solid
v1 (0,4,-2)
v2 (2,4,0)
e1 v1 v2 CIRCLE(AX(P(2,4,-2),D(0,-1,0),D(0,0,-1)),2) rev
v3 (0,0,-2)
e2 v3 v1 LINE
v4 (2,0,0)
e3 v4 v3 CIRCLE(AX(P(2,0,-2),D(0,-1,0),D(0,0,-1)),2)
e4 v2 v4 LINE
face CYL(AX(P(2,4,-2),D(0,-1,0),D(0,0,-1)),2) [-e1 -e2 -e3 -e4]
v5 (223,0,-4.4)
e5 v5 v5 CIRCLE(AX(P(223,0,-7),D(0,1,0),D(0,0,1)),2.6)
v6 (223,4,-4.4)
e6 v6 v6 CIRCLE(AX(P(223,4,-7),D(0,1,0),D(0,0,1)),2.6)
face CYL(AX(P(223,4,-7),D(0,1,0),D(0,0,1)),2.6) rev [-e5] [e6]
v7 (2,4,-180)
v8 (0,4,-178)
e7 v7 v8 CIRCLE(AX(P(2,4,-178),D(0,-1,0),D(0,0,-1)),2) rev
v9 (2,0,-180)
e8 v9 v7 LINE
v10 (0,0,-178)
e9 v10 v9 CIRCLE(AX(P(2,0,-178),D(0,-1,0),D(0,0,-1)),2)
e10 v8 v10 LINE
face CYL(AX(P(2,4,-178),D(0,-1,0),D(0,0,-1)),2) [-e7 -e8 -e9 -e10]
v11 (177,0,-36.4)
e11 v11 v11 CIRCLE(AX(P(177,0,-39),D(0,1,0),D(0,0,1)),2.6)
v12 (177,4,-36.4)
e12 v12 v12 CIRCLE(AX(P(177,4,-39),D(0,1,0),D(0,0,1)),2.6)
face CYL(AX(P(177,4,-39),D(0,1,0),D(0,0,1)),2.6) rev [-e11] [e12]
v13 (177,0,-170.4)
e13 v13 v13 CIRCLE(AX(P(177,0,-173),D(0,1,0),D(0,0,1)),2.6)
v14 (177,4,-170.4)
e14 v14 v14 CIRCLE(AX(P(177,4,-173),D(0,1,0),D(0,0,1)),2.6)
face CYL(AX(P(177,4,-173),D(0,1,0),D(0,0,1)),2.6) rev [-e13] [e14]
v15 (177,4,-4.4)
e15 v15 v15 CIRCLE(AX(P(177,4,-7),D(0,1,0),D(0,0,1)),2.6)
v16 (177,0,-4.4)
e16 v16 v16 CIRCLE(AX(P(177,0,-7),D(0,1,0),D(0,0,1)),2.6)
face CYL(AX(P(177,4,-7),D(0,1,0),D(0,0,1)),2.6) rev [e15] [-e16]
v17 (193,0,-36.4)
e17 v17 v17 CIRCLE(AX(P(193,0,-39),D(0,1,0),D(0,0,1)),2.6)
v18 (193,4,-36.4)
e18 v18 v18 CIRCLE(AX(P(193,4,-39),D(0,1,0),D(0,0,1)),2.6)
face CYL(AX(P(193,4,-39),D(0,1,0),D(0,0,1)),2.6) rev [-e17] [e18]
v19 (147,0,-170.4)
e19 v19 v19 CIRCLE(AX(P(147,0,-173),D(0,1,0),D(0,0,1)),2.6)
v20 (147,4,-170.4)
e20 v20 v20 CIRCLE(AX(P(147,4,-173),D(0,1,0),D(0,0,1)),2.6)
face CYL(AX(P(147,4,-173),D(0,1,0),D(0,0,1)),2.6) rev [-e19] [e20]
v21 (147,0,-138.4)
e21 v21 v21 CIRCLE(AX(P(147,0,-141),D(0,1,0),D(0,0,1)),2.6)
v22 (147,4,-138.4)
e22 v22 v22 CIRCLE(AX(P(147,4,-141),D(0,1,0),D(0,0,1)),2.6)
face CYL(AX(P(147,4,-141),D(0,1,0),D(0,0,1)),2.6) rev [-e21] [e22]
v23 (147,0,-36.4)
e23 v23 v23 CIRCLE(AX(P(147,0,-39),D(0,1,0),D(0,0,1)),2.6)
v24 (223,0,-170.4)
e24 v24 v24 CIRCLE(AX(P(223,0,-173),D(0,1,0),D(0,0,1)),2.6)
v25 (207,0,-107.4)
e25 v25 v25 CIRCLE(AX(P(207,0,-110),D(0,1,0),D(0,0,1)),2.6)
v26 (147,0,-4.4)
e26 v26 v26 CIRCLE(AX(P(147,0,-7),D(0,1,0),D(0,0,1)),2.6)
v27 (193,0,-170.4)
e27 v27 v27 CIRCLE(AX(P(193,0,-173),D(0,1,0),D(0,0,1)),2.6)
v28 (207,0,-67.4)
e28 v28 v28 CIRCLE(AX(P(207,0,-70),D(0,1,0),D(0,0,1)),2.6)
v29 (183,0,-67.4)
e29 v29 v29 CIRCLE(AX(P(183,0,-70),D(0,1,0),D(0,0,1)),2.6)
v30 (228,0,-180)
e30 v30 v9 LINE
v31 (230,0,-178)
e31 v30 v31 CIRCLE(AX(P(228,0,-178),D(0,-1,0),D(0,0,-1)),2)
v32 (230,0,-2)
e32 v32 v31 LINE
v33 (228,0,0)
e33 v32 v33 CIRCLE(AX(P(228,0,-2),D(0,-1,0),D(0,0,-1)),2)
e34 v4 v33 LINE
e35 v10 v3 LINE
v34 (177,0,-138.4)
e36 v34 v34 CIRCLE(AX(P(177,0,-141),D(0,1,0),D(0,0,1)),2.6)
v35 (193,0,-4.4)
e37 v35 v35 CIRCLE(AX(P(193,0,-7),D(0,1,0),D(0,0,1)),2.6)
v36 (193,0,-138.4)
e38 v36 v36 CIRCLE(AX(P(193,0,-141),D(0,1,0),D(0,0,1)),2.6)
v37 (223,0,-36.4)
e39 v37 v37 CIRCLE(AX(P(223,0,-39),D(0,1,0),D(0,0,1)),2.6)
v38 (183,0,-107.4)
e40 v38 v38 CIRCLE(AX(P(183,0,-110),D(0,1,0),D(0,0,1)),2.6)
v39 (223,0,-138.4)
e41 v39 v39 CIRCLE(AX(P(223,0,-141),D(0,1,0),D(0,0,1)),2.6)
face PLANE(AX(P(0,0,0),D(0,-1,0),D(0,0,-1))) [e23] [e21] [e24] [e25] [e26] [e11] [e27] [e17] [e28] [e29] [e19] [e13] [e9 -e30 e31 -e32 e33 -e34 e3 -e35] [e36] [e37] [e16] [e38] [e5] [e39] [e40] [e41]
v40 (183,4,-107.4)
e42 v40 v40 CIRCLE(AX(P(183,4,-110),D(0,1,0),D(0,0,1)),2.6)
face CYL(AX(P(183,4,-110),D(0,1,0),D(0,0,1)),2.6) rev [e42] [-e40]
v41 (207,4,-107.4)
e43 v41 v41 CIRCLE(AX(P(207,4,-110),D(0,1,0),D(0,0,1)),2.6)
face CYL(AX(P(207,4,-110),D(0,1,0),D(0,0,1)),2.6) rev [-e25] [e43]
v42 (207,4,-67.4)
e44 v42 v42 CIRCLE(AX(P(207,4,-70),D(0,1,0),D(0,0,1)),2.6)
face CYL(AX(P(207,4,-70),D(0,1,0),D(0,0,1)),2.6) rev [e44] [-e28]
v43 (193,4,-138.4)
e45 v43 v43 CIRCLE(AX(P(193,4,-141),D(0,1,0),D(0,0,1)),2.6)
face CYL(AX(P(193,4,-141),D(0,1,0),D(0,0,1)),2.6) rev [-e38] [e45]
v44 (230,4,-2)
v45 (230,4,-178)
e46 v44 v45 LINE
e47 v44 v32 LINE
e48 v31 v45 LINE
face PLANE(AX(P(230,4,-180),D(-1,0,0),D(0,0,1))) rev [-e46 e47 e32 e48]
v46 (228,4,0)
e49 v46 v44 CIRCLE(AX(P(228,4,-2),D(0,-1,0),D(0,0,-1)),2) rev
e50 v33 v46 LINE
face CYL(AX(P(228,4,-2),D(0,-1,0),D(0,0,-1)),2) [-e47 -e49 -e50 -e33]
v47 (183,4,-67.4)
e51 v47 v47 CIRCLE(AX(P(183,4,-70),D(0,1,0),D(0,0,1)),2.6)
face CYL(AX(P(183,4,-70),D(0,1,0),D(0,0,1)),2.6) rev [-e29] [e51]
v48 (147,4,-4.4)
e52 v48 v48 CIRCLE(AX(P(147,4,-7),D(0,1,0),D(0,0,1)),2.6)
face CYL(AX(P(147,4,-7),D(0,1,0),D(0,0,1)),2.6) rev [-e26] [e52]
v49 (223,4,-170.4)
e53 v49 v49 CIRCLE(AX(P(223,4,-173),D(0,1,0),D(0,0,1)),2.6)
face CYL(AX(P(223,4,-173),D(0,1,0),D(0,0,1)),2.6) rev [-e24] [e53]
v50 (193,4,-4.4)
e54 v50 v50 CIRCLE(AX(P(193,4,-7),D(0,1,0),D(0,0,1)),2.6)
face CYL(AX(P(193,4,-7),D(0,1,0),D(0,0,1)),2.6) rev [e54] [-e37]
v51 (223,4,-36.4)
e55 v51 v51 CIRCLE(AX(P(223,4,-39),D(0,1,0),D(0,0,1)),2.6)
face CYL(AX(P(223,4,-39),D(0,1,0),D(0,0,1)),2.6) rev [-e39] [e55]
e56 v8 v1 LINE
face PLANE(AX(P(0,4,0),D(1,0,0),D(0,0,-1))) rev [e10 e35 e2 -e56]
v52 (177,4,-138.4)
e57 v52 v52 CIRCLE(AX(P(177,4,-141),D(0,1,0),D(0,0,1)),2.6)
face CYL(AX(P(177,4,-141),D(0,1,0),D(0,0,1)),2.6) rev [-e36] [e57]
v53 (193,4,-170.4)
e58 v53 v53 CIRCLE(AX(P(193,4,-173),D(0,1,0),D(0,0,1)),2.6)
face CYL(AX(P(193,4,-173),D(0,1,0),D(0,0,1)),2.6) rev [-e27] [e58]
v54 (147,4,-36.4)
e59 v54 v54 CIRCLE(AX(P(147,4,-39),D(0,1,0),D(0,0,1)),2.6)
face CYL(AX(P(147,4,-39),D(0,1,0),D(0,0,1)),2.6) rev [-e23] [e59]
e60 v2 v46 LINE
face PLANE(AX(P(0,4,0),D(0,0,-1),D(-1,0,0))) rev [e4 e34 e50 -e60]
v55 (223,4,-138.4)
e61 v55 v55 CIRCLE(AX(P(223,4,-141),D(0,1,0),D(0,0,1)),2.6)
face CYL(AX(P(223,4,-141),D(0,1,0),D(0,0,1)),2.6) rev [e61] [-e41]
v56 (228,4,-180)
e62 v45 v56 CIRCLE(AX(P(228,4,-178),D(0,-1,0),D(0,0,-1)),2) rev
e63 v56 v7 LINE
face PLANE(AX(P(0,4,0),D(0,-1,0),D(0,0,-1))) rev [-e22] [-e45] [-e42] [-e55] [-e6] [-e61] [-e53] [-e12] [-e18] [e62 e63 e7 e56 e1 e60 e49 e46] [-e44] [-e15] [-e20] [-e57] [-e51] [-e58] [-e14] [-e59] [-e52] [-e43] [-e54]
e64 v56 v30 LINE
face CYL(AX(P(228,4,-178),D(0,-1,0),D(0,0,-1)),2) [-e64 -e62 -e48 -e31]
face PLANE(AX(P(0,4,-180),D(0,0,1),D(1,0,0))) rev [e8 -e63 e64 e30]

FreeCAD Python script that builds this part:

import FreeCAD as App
import Part
import Sketcher
Q = App.Units.Quantity


def edges_at(feature, points):
    """Names of the edges that pass closest to the given points."""
    edges = feature.Shape.Edges
    near = lambda p: min(range(len(edges)), key=lambda i: edges[i].distToShape(Part.Vertex(*p))[0])
    return sorted({f"Edge{near(p) + 1}" for p in points})


def add_polygon(sketch, points):
    """Adds a closed chain of lines whose ends are joined by coincident constraints."""
    first, n = sketch.GeometryCount, len(points)
    for a, b in zip(points, points[1:] + points[:1]):
        sketch.addGeometry(Part.LineSegment(App.Vector(*a, 0), App.Vector(*b, 0)), False)
    for i in range(n):
        sketch.addConstraint(Sketcher.Constraint("Coincident", first + i, 2, first + (i + 1) % n, 1))

doc = App.newDocument("Part")
body = doc.addObject("PartDesign::Body", "Body")

# Sketch on XZ plane
sketch1 = body.newObject("Sketcher::SketchObject", "Sketch")
sketch1.AttachmentSupport = (doc.getObject("XZ_Plane"), [""])
sketch1.MapMode = "FlatFace"
add_polygon(sketch1, [(0, -180), (0, 0), (230, 0), (230, -180)])  # lines 0-3
sketch1.addConstraint([
    Sketcher.Constraint("Vertical", 0),
    Sketcher.Constraint("Horizontal", 1),
    Sketcher.Constraint("Vertical", 2),
    Sketcher.Constraint("Horizontal", 3),
    Sketcher.Constraint("Coincident", 0, 2, -1, 1),
    Sketcher.Constraint("DistanceX", 1, 1, 1, 2, Q("230 mm")),
    Sketcher.Constraint("DistanceY", 0, 1, 0, 2, Q("180 mm")),
])
pad1 = body.newObject("PartDesign::Pad", "Pad")
pad1.Profile = sketch1
pad1.Length = 4
pad1.Reversed = True

# Sketch on XZ plane
sketch2 = body.newObject("Sketcher::SketchObject", "Sketch001")
sketch2.AttachmentSupport = (doc.getObject("XZ_Plane"), [""])
sketch2.MapMode = "FlatFace"
sketch2.AttachmentOffset = App.Placement(App.Vector(0, 0, -4), App.Rotation())
sketch2.addGeometry([
    Part.Circle(App.Vector(183, -70, 0), App.Vector(0, 0, 1), 2.6),  # 0
    Part.Circle(App.Vector(183, -110, 0), App.Vector(0, 0, 1), 2.6),  # 1
    Part.Circle(App.Vector(207, -70, 0), App.Vector(0, 0, 1), 2.6),  # 2
    Part.Circle(App.Vector(207, -110, 0), App.Vector(0, 0, 1), 2.6),  # 3
    Part.Circle(App.Vector(223, -39, 0), App.Vector(0, 0, 1), 2.6),  # 4
    Part.Circle(App.Vector(223, -7, 0), App.Vector(0, 0, 1), 2.6),  # 5
    Part.Circle(App.Vector(193, -7, 0), App.Vector(0, 0, 1), 2.6),  # 6
    Part.Circle(App.Vector(193, -39, 0), App.Vector(0, 0, 1), 2.6),  # 7
    Part.Circle(App.Vector(147, -39, 0), App.Vector(0, 0, 1), 2.6),  # 8
    Part.Circle(App.Vector(177, -39, 0), App.Vector(0, 0, 1), 2.6),  # 9
    Part.Circle(App.Vector(147, -7, 0), App.Vector(0, 0, 1), 2.6),  # 10
    Part.Circle(App.Vector(177, -7, 0), App.Vector(0, 0, 1), 2.6),  # 11
    Part.Circle(App.Vector(193, -173, 0), App.Vector(0, 0, 1), 2.6),  # 12
    Part.Circle(App.Vector(223, -173, 0), App.Vector(0, 0, 1), 2.6),  # 13
    Part.Circle(App.Vector(223, -141, 0), App.Vector(0, 0, 1), 2.6),  # 14
    Part.Circle(App.Vector(193, -141, 0), App.Vector(0, 0, 1), 2.6),  # 15
    Part.Circle(App.Vector(177, -173, 0), App.Vector(0, 0, 1), 2.6),  # 16
    Part.Circle(App.Vector(147, -173, 0), App.Vector(0, 0, 1), 2.6),  # 17
    Part.Circle(App.Vector(177, -141, 0), App.Vector(0, 0, 1), 2.6),  # 18
    Part.Circle(App.Vector(147, -141, 0), App.Vector(0, 0, 1), 2.6),  # 19
], False)
sketch2.addConstraint([
    Sketcher.Constraint("Equal", 0, 1),
    Sketcher.Constraint("Equal", 1, 2),
    Sketcher.Constraint("Equal", 2, 3),
    Sketcher.Constraint("Equal", 3, 4),
    Sketcher.Constraint("Equal", 4, 5),
    Sketcher.Constraint("Equal", 5, 6),
    Sketcher.Constraint("Equal", 6, 7),
    Sketcher.Constraint("Equal", 7, 8),
    Sketcher.Constraint("Equal", 8, 9),
    Sketcher.Constraint("Equal", 9, 10),
    Sketcher.Constraint("Equal", 10, 11),
    Sketcher.Constraint("Equal", 11, 12),
    Sketcher.Constraint("Equal", 12, 13),
    Sketcher.Constraint("Equal", 13, 14),
    Sketcher.Constraint("Equal", 14, 15),
    Sketcher.Constraint("Equal", 15, 16),
    Sketcher.Constraint("Equal", 16, 17),
    Sketcher.Constraint("Equal", 17, 18),
    Sketcher.Constraint("Equal", 18, 19),
    Sketcher.Constraint("Horizontal", 0, 3, 2, 3),
    Sketcher.Constraint("Horizontal", 1, 3, 3, 3),
    Sketcher.Constraint("Horizontal", 5, 3, 6, 3),
    Sketcher.Constraint("Horizontal", 4, 3, 7, 3),
    Sketcher.Constraint("Horizontal", 7, 3, 8, 3),
    Sketcher.Constraint("Horizontal", 8, 3, 9, 3),
    Sketcher.Constraint("Horizontal", 6, 3, 10, 3),
    Sketcher.Constraint("Horizontal", 10, 3, 11, 3),
    Sketcher.Constraint("Horizontal", 12, 3, 13, 3),
    Sketcher.Constraint("Horizontal", 14, 3, 15, 3),
    Sketcher.Constraint("Horizontal", 13, 3, 16, 3),
    Sketcher.Constraint("Horizontal", 16, 3, 17, 3),
    Sketcher.Constraint("Horizontal", 15, 3, 18, 3),
    Sketcher.Constraint("Horizontal", 18, 3, 19, 3),
    Sketcher.Constraint("Vertical", 0, 3, 1, 3),
    Sketcher.Constraint("Vertical", 2, 3, 3, 3),
    Sketcher.Constraint("Vertical", 4, 3, 5, 3),
    Sketcher.Constraint("Vertical", 6, 3, 7, 3),
    Sketcher.Constraint("Vertical", 8, 3, 10, 3),
    Sketcher.Constraint("Vertical", 9, 3, 11, 3),
    Sketcher.Constraint("Vertical", 7, 3, 12, 3),
    Sketcher.Constraint("Vertical", 5, 3, 13, 3),
    Sketcher.Constraint("Vertical", 13, 3, 14, 3),
    Sketcher.Constraint("Vertical", 12, 3, 15, 3),
    Sketcher.Constraint("Vertical", 11, 3, 16, 3),
    Sketcher.Constraint("Vertical", 10, 3, 17, 3),
    Sketcher.Constraint("Vertical", 16, 3, 18, 3),
    Sketcher.Constraint("Vertical", 17, 3, 19, 3),
    Sketcher.Constraint("Diameter", 0, Q("5.2 mm")),
    Sketcher.Constraint("DistanceX", -1, 1, 0, 3, Q("183 mm")),
    Sketcher.Constraint("DistanceY", 0, 3, -1, 1, Q("70 mm")),
    Sketcher.Constraint("DistanceY", 1, 3, -1, 1, Q("110 mm")),
    Sketcher.Constraint("DistanceX", -1, 1, 2, 3, Q("207 mm")),
    Sketcher.Constraint("DistanceX", -1, 1, 4, 3, Q("223 mm")),
    Sketcher.Constraint("DistanceY", 4, 3, -1, 1, Q("39 mm")),
    Sketcher.Constraint("DistanceY", 5, 3, -1, 1, Q("7 mm")),
    Sketcher.Constraint("DistanceX", -1, 1, 6, 3, Q("193 mm")),
    Sketcher.Constraint("DistanceX", -1, 1, 8, 3, Q("147 mm")),
    Sketcher.Constraint("DistanceX", -1, 1, 9, 3, Q("177 mm")),
    Sketcher.Constraint("DistanceY", 12, 3, -1, 1, Q("173 mm")),
    Sketcher.Constraint("DistanceY", 14, 3, -1, 1, Q("141 mm")),
])
doc.recompute()
hole = body.newObject("PartDesign::Hole", "Hole")
hole.Profile = sketch2
hole.ThreadType = "None"
hole.Diameter = 5.2
hole.DepthType = "ThroughAll"
hole.Reversed = True
doc.recompute()

fillet = body.newObject("PartDesign::Fillet", "Fillet")
fillet.Base = (hole, edges_at(hole, [
    (0, 2, -180),
    (230, 2, -180),
    (230, 2, 0),
    (0, 2, 0),
]))
fillet.Radius = 2

doc.recompute()
